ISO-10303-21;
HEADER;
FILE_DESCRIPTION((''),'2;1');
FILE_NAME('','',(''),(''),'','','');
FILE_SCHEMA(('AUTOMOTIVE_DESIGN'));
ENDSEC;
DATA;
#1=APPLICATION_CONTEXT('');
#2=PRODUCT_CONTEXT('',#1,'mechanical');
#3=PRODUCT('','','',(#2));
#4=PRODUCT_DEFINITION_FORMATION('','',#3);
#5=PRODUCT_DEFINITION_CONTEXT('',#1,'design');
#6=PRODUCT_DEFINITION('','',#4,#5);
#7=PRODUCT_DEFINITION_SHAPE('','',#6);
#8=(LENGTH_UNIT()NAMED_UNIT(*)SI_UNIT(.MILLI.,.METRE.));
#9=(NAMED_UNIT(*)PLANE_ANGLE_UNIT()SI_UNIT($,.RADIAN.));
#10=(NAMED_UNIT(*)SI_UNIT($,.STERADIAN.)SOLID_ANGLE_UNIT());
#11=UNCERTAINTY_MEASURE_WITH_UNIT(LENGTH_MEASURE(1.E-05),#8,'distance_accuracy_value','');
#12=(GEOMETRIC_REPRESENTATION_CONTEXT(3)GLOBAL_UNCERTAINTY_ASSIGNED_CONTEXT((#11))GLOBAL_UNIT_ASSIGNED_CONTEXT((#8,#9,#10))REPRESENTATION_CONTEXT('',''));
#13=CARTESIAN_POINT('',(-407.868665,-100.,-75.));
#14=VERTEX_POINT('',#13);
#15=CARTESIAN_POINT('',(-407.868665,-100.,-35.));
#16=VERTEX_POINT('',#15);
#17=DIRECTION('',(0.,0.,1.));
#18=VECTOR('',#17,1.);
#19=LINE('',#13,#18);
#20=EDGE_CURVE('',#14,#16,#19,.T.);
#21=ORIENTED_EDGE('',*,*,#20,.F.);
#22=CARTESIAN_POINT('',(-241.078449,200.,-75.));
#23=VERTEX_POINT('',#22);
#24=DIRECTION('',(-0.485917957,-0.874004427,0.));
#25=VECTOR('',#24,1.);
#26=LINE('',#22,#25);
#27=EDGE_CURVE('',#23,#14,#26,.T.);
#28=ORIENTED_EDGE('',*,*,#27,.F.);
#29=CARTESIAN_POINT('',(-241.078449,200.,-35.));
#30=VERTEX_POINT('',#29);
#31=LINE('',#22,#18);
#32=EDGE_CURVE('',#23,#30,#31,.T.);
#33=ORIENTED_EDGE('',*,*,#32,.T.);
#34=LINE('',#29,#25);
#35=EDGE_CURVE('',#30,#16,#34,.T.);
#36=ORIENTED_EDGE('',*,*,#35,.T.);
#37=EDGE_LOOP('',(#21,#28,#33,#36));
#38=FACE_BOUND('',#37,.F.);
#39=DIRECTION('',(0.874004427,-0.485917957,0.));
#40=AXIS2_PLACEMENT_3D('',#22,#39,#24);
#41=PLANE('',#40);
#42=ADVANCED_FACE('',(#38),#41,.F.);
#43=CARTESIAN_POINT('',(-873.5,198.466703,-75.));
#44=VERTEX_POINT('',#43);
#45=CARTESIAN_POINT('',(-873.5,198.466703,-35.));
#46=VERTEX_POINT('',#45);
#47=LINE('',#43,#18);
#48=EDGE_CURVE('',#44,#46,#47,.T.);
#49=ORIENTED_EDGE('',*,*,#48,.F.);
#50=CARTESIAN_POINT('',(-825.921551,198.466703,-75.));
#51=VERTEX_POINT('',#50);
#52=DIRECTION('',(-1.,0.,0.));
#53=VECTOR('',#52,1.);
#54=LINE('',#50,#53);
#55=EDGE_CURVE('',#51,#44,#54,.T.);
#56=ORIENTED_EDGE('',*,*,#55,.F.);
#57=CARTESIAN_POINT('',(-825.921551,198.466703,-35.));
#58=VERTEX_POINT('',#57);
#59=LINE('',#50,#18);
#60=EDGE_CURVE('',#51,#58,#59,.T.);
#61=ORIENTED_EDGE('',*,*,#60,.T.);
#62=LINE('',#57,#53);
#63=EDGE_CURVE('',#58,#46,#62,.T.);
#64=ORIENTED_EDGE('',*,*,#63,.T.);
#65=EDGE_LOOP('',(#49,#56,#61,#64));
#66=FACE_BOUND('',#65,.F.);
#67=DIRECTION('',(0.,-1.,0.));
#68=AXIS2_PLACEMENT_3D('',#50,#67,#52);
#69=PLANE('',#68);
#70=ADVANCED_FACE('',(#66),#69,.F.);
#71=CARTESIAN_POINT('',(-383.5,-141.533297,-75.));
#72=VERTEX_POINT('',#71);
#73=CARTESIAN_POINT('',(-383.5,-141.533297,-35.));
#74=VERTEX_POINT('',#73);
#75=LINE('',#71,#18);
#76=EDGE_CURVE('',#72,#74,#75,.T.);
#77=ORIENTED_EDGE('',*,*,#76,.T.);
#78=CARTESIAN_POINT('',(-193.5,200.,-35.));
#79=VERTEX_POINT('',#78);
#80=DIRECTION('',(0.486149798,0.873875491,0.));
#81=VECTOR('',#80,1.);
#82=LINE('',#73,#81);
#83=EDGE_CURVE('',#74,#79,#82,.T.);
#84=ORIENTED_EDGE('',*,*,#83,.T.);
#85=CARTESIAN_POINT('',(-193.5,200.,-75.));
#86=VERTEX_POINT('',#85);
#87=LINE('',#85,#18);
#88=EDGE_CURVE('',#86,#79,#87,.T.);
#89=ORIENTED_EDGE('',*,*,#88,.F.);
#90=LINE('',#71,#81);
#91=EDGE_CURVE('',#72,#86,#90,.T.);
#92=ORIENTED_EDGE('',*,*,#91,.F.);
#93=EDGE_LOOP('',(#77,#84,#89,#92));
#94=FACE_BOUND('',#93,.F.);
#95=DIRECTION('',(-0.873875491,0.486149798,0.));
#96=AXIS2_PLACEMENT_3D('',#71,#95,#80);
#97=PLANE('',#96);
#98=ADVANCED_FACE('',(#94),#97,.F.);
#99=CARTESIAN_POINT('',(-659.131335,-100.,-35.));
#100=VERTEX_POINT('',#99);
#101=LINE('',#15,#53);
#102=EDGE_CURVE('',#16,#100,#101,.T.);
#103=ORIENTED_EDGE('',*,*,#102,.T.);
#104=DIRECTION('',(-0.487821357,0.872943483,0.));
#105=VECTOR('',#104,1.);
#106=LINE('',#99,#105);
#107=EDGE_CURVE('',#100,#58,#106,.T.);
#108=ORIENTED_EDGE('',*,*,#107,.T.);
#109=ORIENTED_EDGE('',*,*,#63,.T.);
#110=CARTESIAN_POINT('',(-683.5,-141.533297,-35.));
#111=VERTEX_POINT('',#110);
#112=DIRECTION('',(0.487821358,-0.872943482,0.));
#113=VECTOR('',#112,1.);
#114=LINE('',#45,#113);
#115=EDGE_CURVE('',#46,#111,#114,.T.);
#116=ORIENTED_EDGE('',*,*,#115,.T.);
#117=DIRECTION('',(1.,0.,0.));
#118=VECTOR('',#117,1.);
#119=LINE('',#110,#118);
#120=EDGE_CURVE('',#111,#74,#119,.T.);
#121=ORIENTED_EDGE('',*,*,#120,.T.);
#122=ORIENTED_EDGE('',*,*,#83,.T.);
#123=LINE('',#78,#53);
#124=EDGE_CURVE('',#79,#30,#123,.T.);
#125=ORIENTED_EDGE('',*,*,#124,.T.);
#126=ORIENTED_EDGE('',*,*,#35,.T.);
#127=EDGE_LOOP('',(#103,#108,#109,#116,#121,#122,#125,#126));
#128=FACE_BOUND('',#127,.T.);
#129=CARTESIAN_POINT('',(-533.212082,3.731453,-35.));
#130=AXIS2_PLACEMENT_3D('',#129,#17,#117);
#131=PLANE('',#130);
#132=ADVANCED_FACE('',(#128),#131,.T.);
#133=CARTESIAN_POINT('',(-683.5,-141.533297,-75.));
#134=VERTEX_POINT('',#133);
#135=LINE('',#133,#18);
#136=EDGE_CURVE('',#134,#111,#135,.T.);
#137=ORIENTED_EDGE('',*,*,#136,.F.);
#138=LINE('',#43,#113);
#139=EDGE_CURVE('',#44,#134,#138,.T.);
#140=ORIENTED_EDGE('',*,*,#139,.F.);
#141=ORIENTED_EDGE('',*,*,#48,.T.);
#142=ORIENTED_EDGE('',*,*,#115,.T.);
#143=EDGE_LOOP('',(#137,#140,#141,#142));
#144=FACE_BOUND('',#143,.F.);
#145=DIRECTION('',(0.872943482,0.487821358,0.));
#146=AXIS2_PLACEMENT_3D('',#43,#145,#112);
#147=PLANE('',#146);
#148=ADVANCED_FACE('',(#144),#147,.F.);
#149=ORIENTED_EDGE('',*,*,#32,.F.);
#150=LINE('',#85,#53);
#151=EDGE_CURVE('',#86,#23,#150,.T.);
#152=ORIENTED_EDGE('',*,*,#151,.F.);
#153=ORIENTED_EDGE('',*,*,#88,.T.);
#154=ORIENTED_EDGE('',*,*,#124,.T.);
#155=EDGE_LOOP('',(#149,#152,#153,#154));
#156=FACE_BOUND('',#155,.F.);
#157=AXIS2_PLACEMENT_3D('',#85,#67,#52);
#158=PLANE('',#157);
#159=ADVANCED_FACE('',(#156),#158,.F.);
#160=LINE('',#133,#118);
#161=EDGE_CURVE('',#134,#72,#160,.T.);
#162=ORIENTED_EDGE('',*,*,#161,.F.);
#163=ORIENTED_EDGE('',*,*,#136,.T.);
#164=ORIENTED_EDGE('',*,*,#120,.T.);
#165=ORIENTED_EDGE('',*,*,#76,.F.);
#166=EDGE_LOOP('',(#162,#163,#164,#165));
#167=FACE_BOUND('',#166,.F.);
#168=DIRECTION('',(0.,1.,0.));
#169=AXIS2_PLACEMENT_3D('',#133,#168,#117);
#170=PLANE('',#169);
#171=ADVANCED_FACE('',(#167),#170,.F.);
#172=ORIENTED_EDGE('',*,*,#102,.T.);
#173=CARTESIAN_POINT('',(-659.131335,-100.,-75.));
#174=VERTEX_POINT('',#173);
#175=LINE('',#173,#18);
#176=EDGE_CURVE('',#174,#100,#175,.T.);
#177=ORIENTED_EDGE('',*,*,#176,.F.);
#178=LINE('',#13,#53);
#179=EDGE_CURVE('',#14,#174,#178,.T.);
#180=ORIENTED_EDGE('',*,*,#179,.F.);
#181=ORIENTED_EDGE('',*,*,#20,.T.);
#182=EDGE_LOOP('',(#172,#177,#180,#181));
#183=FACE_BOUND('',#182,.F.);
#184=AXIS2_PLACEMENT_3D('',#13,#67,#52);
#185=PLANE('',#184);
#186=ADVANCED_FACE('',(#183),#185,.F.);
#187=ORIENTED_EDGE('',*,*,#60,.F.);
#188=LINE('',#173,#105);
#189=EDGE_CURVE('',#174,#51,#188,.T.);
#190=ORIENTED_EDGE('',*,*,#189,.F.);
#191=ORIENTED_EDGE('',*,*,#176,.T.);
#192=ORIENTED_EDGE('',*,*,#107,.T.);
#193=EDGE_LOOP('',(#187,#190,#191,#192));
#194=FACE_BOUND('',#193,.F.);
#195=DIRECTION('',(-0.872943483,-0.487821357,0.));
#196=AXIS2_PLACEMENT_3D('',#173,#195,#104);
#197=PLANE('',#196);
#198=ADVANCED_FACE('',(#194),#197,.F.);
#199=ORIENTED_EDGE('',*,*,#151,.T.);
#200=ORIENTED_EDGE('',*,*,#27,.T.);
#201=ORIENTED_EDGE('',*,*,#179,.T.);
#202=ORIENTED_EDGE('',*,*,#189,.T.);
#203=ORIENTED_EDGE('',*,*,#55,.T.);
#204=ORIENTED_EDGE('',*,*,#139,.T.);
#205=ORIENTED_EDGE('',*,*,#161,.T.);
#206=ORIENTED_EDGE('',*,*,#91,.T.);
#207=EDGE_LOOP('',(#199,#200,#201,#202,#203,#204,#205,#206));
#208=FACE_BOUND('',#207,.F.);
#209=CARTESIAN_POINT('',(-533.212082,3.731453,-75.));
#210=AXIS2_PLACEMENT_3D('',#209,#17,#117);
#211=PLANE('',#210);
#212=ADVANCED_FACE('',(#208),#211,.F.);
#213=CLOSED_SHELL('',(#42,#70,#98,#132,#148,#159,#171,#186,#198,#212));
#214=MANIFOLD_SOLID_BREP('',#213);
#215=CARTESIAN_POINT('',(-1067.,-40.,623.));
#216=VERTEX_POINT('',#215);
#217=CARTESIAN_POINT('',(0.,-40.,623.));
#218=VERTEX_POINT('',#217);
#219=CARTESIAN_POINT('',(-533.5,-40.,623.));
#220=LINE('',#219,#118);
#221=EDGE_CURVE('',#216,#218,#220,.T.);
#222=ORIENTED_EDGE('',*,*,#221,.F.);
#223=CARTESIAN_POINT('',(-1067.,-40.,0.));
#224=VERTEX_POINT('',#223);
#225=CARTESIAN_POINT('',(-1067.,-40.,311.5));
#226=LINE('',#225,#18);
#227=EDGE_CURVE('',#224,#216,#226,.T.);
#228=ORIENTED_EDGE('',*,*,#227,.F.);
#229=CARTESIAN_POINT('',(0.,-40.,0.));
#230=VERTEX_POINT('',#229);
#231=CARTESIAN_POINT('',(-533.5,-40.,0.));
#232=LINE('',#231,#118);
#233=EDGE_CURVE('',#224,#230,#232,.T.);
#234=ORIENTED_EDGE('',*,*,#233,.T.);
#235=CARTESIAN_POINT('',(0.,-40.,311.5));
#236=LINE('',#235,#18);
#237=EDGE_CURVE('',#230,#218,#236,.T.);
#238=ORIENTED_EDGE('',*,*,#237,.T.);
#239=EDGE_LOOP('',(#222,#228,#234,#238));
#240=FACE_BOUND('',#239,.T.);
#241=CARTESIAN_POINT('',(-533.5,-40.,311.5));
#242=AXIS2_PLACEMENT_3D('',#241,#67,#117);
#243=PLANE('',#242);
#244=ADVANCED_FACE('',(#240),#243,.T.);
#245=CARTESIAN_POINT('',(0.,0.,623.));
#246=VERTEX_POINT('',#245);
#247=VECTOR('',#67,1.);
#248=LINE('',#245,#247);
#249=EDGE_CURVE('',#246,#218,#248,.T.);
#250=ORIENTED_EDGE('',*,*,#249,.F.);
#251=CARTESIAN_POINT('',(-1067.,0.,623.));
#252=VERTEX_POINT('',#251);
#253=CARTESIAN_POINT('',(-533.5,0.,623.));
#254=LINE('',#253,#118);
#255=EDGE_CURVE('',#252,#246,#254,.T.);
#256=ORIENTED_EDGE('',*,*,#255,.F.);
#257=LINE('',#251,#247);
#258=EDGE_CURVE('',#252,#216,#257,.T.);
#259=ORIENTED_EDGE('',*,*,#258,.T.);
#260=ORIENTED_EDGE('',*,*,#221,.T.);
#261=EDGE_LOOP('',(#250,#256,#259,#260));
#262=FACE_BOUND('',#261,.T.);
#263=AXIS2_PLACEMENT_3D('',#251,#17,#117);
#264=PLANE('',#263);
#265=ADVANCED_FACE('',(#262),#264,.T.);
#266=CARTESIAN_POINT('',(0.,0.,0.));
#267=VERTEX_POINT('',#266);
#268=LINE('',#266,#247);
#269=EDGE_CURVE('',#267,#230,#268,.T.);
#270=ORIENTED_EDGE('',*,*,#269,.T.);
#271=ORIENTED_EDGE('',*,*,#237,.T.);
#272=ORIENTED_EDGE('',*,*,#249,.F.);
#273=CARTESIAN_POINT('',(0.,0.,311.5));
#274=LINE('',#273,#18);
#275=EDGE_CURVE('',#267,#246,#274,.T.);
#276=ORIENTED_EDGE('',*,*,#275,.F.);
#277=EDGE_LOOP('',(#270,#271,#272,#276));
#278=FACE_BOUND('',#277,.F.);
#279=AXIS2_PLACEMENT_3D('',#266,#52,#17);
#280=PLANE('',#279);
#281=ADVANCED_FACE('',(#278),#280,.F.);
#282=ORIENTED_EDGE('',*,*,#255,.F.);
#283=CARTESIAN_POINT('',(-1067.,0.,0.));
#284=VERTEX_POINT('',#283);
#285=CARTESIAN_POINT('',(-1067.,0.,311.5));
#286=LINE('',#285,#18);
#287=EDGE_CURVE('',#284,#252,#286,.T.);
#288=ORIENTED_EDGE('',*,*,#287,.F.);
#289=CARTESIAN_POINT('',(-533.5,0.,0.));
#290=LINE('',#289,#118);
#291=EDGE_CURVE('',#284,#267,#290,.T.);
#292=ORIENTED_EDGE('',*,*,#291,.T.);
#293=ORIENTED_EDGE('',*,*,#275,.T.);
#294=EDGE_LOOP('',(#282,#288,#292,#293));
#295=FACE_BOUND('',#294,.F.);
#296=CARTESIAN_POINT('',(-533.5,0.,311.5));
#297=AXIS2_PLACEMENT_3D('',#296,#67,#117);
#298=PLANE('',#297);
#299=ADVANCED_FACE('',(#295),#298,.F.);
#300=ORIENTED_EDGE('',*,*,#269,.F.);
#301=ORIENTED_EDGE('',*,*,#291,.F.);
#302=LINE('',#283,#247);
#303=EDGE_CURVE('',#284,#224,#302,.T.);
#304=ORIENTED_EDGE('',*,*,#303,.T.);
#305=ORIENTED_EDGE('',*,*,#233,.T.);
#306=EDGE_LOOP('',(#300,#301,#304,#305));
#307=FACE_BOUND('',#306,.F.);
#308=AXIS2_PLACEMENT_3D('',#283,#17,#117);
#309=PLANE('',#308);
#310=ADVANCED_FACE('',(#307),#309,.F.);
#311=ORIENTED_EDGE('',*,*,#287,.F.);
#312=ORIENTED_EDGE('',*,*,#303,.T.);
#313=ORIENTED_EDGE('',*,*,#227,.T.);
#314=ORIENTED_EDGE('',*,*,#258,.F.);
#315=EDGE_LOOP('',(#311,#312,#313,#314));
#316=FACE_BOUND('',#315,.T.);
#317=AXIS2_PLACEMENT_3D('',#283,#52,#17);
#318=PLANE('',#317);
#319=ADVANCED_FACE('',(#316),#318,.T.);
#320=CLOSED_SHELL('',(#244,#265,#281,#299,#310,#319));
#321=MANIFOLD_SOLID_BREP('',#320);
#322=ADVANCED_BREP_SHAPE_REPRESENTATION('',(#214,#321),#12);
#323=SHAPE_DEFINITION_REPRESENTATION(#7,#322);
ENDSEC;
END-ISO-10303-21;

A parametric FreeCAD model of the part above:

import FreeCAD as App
import Part
import Sketcher
from FreeCAD import Vector

doc = App.newDocument("Part")
body = doc.addObject("PartDesign::Body", "Body")

sketch1 = body.newObject("Sketcher::SketchObject", "Sketch")
sketch1.AttachmentSupport = (doc.getObject("XZ_Plane"), [""])
sketch1.MapMode = "FlatFace"
sketch1.addGeometry([
    Part.LineSegment(Vector(-1067, 623, 0), Vector(-1067, 0, 0)),
    Part.LineSegment(Vector(-1067, 0, 0), Vector(0, 0, 0)),
    Part.LineSegment(Vector(0, 0, 0), Vector(0, 623, 0)),
    Part.LineSegment(Vector(0, 623, 0), Vector(-1067, 623, 0)),
], False)
sketch1.addConstraint([
    Sketcher.Constraint("Coincident", 0, 2, 1, 1),
    Sketcher.Constraint("Coincident", 1, 2, 2, 1),
    Sketcher.Constraint("Coincident", 2, 2, 3, 1),
    Sketcher.Constraint("Coincident", 3, 2, 0, 1),
    Sketcher.Constraint("Vertical", 0),
    Sketcher.Constraint("Horizontal", 1),
    Sketcher.Constraint("Vertical", 2),
    Sketcher.Constraint("Horizontal", 3),
    Sketcher.Constraint("Coincident", 1, 2, -1, 1),
    Sketcher.Constraint("DistanceX", 1, 1, 1, 2, 1067.0),
    Sketcher.Constraint("DistanceY", 0, 2, 0, 1, 623.0),
])
pad1 = body.newObject("PartDesign::Pad", "Pad")
pad1.Profile = sketch1
pad1.Length = 40
body2 = doc.addObject("PartDesign::Body", "Body001")

sketch2 = body2.newObject("Sketcher::SketchObject", "Sketch001")
sketch2.AttachmentSupport = (doc.getObject("XY_Plane001"), [""])
sketch2.MapMode = "FlatFace"
sketch2.AttachmentOffset = App.Placement(Vector(0, 0, -75), App.Rotation())
sketch2.addGeometry([
    Part.LineSegment(Vector(-874, 198, 0), Vector(-684, -142, 0)),
    Part.LineSegment(Vector(-684, -142, 0), Vector(-384, -142, 0)),
    Part.LineSegment(Vector(-384, -142, 0), Vector(-194, 200, 0)),
    Part.LineSegment(Vector(-194, 200, 0), Vector(-241, 200, 0)),
    Part.LineSegment(Vector(-241, 200, 0), Vector(-408, -100, 0)),
    Part.LineSegment(Vector(-408, -100, 0), Vector(-659, -100, 0)),
    Part.LineSegment(Vector(-659, -100, 0), Vector(-826, 198, 0)),
    Part.LineSegment(Vector(-826, 198, 0), Vector(-874, 198, 0)),
], False)
sketch2.addConstraint([
    Sketcher.Constraint("Coincident", 0, 2, 1, 1),
    Sketcher.Constraint("Coincident", 1, 2, 2, 1),
    Sketcher.Constraint("Coincident", 2, 2, 3, 1),
    Sketcher.Constraint("Coincident", 3, 2, 4, 1),
    Sketcher.Constraint("Coincident", 4, 2, 5, 1),
    Sketcher.Constraint("Coincident", 5, 2, 6, 1),
    Sketcher.Constraint("Coincident", 6, 2, 7, 1),
    Sketcher.Constraint("Coincident", 7, 2, 0, 1),
    Sketcher.Constraint("Horizontal", 1),
    Sketcher.Constraint("Horizontal", 3),
    Sketcher.Constraint("Horizontal", 5),
    Sketcher.Constraint("Horizontal", 7),
    Sketcher.Constraint("Parallel", 0, 6),
    Sketcher.Constraint("Equal", 3, 7),
    Sketcher.Constraint("DistanceX", 1, 1, 1, 2, 300.0),
    Sketcher.Constraint("DistanceY", -1, 1, 2, 2, 200.0),
    Sketcher.Constraint("DistanceY", 4, 2, -1, 1, 100.0),
    Sketcher.Constraint("DistanceX", 1, 2, 2, 2, 190.0),
    Sketcher.Constraint("DistanceY", 0, 2, 6, 2, 340.0),
    Sketcher.Constraint("DistanceX", 7, 2, 0, 2, 190.0),
    Sketcher.Constraint("DistanceX", 0, 2, -1, 1, 683.5),
    Sketcher.Constraint("DistanceX", 3, 2, 3, 1, 47.578449),
    Sketcher.Constraint("DistanceX", 5, 2, 5, 1, 251.26267),
    Sketcher.Constraint("Distance", 2, 390.826039),
])
pad2 = body2.newObject("PartDesign::Pad", "Pad001")
pad2.Profile = sketch2
pad2.Length = 40

doc.recompute()
